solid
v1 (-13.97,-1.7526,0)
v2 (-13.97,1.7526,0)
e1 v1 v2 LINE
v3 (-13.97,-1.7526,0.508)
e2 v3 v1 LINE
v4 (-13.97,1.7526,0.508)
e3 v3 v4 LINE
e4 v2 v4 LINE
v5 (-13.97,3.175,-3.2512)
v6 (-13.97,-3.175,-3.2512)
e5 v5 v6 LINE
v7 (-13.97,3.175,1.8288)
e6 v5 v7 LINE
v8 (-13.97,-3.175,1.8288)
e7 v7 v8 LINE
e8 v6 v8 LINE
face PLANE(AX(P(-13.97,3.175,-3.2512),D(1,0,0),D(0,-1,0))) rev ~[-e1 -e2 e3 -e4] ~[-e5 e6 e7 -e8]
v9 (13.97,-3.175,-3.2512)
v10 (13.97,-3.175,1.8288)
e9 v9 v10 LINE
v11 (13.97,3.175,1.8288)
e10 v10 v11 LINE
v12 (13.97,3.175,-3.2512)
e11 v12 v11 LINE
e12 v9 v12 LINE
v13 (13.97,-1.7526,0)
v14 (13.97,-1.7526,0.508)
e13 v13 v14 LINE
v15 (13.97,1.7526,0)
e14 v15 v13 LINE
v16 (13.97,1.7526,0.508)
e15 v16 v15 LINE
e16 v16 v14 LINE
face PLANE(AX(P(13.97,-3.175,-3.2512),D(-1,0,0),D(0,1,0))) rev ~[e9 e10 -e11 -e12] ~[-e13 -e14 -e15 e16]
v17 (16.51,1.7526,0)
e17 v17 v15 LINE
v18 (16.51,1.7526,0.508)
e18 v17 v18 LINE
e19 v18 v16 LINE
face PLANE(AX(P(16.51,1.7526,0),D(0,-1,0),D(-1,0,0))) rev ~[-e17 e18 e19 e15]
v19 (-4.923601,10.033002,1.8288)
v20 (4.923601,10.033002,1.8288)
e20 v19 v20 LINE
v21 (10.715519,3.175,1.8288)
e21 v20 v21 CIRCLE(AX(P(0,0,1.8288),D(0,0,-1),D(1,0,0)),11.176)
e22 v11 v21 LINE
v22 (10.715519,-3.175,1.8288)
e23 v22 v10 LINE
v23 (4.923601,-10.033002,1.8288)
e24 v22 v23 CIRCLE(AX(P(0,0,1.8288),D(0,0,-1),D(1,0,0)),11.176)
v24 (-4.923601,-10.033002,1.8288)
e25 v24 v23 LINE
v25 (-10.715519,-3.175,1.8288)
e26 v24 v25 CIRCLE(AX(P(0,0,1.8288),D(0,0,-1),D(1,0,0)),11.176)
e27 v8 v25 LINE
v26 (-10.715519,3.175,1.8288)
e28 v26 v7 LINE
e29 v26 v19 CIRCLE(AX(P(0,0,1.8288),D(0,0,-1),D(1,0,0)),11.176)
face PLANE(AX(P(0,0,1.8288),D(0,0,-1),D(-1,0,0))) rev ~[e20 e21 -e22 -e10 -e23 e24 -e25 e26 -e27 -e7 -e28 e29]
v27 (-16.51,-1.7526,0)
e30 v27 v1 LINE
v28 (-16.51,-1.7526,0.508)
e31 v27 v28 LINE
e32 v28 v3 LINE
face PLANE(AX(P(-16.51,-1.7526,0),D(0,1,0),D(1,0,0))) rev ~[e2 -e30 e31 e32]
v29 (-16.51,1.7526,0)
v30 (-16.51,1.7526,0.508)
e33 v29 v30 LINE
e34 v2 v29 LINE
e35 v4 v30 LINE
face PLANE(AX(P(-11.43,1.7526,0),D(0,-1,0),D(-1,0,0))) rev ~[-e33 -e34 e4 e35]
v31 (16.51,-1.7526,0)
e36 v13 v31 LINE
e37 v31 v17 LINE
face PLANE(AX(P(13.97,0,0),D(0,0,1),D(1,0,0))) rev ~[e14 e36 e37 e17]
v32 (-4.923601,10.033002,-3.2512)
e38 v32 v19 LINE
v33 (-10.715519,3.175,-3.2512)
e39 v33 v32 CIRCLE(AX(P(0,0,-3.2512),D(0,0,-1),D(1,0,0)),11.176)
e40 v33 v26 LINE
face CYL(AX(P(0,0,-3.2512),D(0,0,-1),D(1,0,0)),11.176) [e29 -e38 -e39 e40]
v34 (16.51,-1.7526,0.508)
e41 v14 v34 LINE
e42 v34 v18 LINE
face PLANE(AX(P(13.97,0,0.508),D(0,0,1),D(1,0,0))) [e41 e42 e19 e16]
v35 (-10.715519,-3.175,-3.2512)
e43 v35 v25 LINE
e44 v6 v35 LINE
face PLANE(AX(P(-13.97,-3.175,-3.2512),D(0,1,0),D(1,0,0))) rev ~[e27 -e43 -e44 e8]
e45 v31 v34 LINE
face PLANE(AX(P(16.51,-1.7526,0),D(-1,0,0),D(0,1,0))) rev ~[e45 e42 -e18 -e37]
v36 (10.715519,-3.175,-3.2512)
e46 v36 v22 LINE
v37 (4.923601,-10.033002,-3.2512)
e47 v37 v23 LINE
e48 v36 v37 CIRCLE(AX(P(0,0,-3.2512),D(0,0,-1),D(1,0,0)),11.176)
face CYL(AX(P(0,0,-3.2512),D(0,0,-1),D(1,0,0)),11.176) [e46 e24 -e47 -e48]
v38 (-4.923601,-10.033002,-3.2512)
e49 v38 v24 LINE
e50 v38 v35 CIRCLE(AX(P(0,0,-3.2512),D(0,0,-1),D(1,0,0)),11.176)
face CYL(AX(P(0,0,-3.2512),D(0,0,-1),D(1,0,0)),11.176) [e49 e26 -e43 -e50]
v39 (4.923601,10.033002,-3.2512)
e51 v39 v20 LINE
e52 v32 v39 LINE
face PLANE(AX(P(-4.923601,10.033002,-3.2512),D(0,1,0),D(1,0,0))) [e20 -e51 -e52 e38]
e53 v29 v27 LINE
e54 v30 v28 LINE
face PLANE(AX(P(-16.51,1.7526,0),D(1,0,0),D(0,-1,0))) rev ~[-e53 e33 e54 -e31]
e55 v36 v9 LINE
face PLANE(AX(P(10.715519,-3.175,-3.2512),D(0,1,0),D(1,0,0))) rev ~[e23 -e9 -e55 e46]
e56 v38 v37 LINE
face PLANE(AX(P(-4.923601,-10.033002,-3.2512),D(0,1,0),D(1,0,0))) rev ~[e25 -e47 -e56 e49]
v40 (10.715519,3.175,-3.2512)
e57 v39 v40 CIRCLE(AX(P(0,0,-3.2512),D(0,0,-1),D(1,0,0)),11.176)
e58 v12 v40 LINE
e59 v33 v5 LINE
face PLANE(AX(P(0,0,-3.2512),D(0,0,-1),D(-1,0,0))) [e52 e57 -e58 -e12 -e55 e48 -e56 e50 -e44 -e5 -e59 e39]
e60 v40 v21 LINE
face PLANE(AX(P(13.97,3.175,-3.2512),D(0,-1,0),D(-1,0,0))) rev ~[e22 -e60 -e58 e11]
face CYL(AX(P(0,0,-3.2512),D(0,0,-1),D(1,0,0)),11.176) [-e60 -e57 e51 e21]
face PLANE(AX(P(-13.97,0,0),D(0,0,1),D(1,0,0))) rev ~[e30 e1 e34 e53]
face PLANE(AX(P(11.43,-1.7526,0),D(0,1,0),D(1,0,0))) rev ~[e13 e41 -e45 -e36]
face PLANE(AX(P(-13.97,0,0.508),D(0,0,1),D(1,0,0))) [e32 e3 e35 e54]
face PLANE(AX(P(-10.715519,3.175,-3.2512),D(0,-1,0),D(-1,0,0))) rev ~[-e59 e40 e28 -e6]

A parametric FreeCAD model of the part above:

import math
import FreeCAD as App
import Part
import Sketcher
Q = App.Units.Quantity


def add_polygon(sketch, points):
    """Adds a closed chain of lines whose ends are joined by coincident constraints."""
    first, n = sketch.GeometryCount, len(points)
    for a, b in zip(points, points[1:] + points[:1]):
        sketch.addGeometry(Part.LineSegment(App.Vector(*a, 0), App.Vector(*b, 0)), False)
    for i in range(n):
        sketch.addConstraint(Sketcher.Constraint("Coincident", first + i, 2, first + (i + 1) % n, 1))

doc = App.newDocument("Part")
body = doc.addObject("PartDesign::Body", "Body")
body.AllowCompound = True

# Sketch on XY plane
sketch1 = body.newObject("Sketcher::SketchObject", "Sketch")
sketch1.AttachmentSupport = (doc.getObject("XY_Plane"), [""])
sketch1.MapMode = "FlatFace"
add_polygon(sketch1, [(-16.51, -1.7526), (-11.43, -1.7526), (-11.43, 1.7526), (-16.51, 1.7526)])  # lines 0-3
add_polygon(sketch1, [(16.51, -1.7526), (16.51, 1.7526), (11.43, 1.7526), (11.43, -1.7526)])  # lines 4-7
sketch1.addConstraint([
    Sketcher.Constraint("Horizontal", 0),
    Sketcher.Constraint("Vertical", 1),
    Sketcher.Constraint("Horizontal", 2),
    Sketcher.Constraint("Vertical", 3),
    Sketcher.Constraint("Vertical", 4),
    Sketcher.Constraint("Horizontal", 5),
    Sketcher.Constraint("Vertical", 6),
    Sketcher.Constraint("Horizontal", 7),
    Sketcher.Constraint("Symmetric", 3, 2, 4, 2, -1, 1),
    Sketcher.Constraint("Symmetric", 1, 2, 6, 2, -1, 1),
    Sketcher.Constraint("Horizontal", 2, 2, 4, 2),
    Sketcher.Constraint("DistanceX", 0, 1, 0, 2, Q("0.2 in")),
    Sketcher.Constraint("DistanceX", 1, 2, 4, 2, Q("1.1 in")),
    Sketcher.Constraint("DistanceY", 1, 1, 1, 2, Q("0.138 in")),
])
pad1 = body.newObject("PartDesign::Pad", "Pad")
pad1.Profile = sketch1
pad1.Length = Q("0.02 in")

# Sketch on XY plane
sketch2 = body.newObject("Sketcher::SketchObject", "Sketch001")
sketch2.AttachmentSupport = (doc.getObject("XY_Plane"), [""])
sketch2.MapMode = "FlatFace"
sketch2.AttachmentOffset = App.Placement(App.Vector(0, 0, -0.128 * 25.4), App.Rotation())
sketch2.addGeometry([
    Part.LineSegment(App.Vector(-13.97, 3.175, 0), App.Vector(-13.97, -3.175, 0)),  # 0
    Part.LineSegment(App.Vector(-13.97, -3.175, 0), App.Vector(-10.715517, -3.175, 0)),  # 1
    Part.ArcOfCircle(Part.Circle(App.Vector(0, 0, 0), App.Vector(0, 0, 1), 11.175998), math.radians(-163.495481), math.radians(-116.13906)),  # 2
    Part.LineSegment(App.Vector(-4.9236, -10.033, 0), App.Vector(4.9236, -10.033, 0)),  # 3
    Part.ArcOfCircle(Part.Circle(App.Vector(0, 0, 0), App.Vector(0, 0, 1), 11.175998), math.radians(-63.86094), math.radians(-16.504519)),  # 4
    Part.LineSegment(App.Vector(10.715517, -3.175, 0), App.Vector(13.97, -3.175, 0)),  # 5
    Part.LineSegment(App.Vector(13.97, -3.175, 0), App.Vector(13.97, 3.175, 0)),  # 6
    Part.LineSegment(App.Vector(13.97, 3.175, 0), App.Vector(10.715517, 3.175, 0)),  # 7
    Part.ArcOfCircle(Part.Circle(App.Vector(0, 0, 0), App.Vector(0, 0, 1), 11.175998), math.radians(16.504519), math.radians(63.86094)),  # 8
    Part.LineSegment(App.Vector(4.9236, 10.033, 0), App.Vector(-4.9236, 10.033, 0)),  # 9
    Part.ArcOfCircle(Part.Circle(App.Vector(0, 0, 0), App.Vector(0, 0, 1), 11.175998), math.radians(116.13906), math.radians(163.495481)),  # 10
    Part.LineSegment(App.Vector(-10.715517, 3.175, 0), App.Vector(-13.97, 3.175, 0)),  # 11
], False)
sketch2.addConstraint([
    Sketcher.Constraint("Coincident", 0, 2, 1, 1),
    Sketcher.Constraint("Coincident", 1, 2, 2, 1),
    Sketcher.Constraint("Coincident", 2, 2, 3, 1),
    Sketcher.Constraint("Coincident", 3, 2, 4, 1),
    Sketcher.Constraint("Coincident", 4, 2, 5, 1),
    Sketcher.Constraint("Coincident", 5, 2, 6, 1),
    Sketcher.Constraint("Coincident", 6, 2, 7, 1),
    Sketcher.Constraint("Coincident", 7, 2, 8, 1),
    Sketcher.Constraint("Coincident", 8, 2, 9, 1),
    Sketcher.Constraint("Coincident", 9, 2, 10, 1),
    Sketcher.Constraint("Coincident", 10, 2, 11, 1),
    Sketcher.Constraint("Coincident", 11, 2, 0, 1),
    Sketcher.Constraint("Vertical", 0),
    Sketcher.Constraint("Horizontal", 1),
    Sketcher.Constraint("Horizontal", 3),
    Sketcher.Constraint("Horizontal", 5),
    Sketcher.Constraint("Vertical", 6),
    Sketcher.Constraint("Horizontal", 7),
    Sketcher.Constraint("Horizontal", 9),
    Sketcher.Constraint("Horizontal", 11),
    Sketcher.Constraint("Coincident", 2, 3, -1, 1),
    Sketcher.Constraint("Coincident", 4, 3, -1, 1),
    Sketcher.Constraint("Coincident", 8, 3, -1, 1),
    Sketcher.Constraint("Coincident", 10, 3, -1, 1),
    Sketcher.Constraint("Equal", 2, 4),
    Sketcher.Constraint("Equal", 4, 8),
    Sketcher.Constraint("Equal", 8, 10),
    Sketcher.Constraint("Symmetric", 0, 2, 6, 2, -1, 1),
    Sketcher.Constraint("Horizontal", 1, 2, 4, 2),
    Sketcher.Constraint("Horizontal", 7, 2, 10, 2),
    Sketcher.Constraint("Vertical", 3, 2, 8, 2),
    Sketcher.Constraint("Radius", 2, Q("0.44 in")),
    Sketcher.Constraint("DistanceY", 0, 2, 0, 1, Q("0.25 in")),
    Sketcher.Constraint("DistanceX", 0, 2, -1, 1, Q("0.55 in")),
    Sketcher.Constraint("DistanceY", 2, 2, 1, 2, Q("0.27 in")),
])
pad2 = body.newObject("PartDesign::Pad", "Pad001")
pad2.Profile = sketch2
pad2.Length = Q("0.2 in")

doc.recompute()
